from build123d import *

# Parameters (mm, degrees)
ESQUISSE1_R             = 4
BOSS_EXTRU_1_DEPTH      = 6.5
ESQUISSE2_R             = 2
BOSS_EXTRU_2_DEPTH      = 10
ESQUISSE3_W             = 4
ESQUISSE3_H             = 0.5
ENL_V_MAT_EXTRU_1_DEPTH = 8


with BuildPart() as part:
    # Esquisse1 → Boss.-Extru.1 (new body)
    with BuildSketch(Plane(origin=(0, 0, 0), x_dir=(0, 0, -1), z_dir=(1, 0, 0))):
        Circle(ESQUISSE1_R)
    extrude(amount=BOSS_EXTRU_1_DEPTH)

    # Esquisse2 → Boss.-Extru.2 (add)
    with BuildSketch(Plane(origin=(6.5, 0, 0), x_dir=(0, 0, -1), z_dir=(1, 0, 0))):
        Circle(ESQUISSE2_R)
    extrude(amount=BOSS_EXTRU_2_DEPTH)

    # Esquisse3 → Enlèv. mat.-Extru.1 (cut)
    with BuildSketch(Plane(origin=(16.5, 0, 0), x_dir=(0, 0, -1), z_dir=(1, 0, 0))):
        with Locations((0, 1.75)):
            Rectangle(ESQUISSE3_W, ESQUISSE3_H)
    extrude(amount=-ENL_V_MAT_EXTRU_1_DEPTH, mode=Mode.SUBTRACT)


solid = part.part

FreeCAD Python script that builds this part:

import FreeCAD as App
import Part
import Sketcher

V = App.Vector


def add_polygon(sketch, points):
    """Adds a closed chain of lines whose ends are joined by coincident constraints."""
    first, n = sketch.GeometryCount, len(points)
    for a, b in zip(points, points[1:] + points[:1]):
        sketch.addGeometry(Part.LineSegment(App.Vector(*a, 0), App.Vector(*b, 0)), False)
    for i in range(n):
        sketch.addConstraint(Sketcher.Constraint("Coincident", first + i, 2, first + (i + 1) % n, 1))

doc = App.newDocument("Part")
body = doc.addObject("PartDesign::Body", "Body")

sketch1 = doc.addObject("Sketcher::SketchObject", "Sketch")
body.addObject(sketch1)
sketch1.AttachmentSupport = (doc.YZ_Plane, [""])
sketch1.MapMode = "FlatFace"
sketch1.addGeometry(Part.Circle(V(0, 0, 0), V(0, 0, 1), 4), False)
sketch1.addConstraint([
    Sketcher.Constraint("Coincident", 0, 3, -1, 1),
    Sketcher.Constraint("Diameter", 0, 8.0),
])
pad1 = doc.addObject("PartDesign::Pad", "Pad")
body.addObject(pad1)
pad1.Profile = sketch1
pad1.Length = 6.5

sketch2 = doc.addObject("Sketcher::SketchObject", "Sketch001")
body.addObject(sketch2)
sketch2.AttachmentSupport = (doc.YZ_Plane, [""])
sketch2.MapMode = "FlatFace"
sketch2.AttachmentOffset = App.Placement(V(0, 0, 6.5), App.Rotation())
sketch2.addGeometry(Part.Circle(V(0, 0, 0), V(0, 0, 1), 2), False)
sketch2.addConstraint([
    Sketcher.Constraint("Coincident", 0, 3, -1, 1),
    Sketcher.Constraint("Diameter", 0, 4.0),
])
pad2 = doc.addObject("PartDesign::Pad", "Pad001")
body.addObject(pad2)
pad2.Profile = sketch2
pad2.Length = 10

sketch3 = doc.addObject("Sketcher::SketchObject", "Sketch002")
body.addObject(sketch3)
sketch3.AttachmentSupport = (doc.YZ_Plane, [""])
sketch3.MapMode = "FlatFace"
sketch3.AttachmentOffset = App.Placement(V(0, 0, 16.5), App.Rotation())
add_polygon(sketch3, [(2, 2), (1.5, 2), (1.5, -2), (2, -2)])
sketch3.addConstraint([
    Sketcher.Constraint("Horizontal", 0),
    Sketcher.Constraint("Vertical", 1),
    Sketcher.Constraint("Horizontal", 2),
    Sketcher.Constraint("Vertical", 3),
    Sketcher.Constraint("DistanceY", 1, 2, 1, 1, 4.0),
    Sketcher.Constraint("DistanceX", 0, 2, 0, 1, 0.5),
    Sketcher.Constraint("DistanceY", -1, 1, 0, 2, 2.0),
    Sketcher.Constraint("DistanceX", -1, 1, 2, 2, 2.0),
])
pocket1 = doc.addObject("PartDesign::Pocket", "Pocket")
body.addObject(pocket1)
pocket1.Profile = sketch3
pocket1.Length = 8

doc.recompute()
